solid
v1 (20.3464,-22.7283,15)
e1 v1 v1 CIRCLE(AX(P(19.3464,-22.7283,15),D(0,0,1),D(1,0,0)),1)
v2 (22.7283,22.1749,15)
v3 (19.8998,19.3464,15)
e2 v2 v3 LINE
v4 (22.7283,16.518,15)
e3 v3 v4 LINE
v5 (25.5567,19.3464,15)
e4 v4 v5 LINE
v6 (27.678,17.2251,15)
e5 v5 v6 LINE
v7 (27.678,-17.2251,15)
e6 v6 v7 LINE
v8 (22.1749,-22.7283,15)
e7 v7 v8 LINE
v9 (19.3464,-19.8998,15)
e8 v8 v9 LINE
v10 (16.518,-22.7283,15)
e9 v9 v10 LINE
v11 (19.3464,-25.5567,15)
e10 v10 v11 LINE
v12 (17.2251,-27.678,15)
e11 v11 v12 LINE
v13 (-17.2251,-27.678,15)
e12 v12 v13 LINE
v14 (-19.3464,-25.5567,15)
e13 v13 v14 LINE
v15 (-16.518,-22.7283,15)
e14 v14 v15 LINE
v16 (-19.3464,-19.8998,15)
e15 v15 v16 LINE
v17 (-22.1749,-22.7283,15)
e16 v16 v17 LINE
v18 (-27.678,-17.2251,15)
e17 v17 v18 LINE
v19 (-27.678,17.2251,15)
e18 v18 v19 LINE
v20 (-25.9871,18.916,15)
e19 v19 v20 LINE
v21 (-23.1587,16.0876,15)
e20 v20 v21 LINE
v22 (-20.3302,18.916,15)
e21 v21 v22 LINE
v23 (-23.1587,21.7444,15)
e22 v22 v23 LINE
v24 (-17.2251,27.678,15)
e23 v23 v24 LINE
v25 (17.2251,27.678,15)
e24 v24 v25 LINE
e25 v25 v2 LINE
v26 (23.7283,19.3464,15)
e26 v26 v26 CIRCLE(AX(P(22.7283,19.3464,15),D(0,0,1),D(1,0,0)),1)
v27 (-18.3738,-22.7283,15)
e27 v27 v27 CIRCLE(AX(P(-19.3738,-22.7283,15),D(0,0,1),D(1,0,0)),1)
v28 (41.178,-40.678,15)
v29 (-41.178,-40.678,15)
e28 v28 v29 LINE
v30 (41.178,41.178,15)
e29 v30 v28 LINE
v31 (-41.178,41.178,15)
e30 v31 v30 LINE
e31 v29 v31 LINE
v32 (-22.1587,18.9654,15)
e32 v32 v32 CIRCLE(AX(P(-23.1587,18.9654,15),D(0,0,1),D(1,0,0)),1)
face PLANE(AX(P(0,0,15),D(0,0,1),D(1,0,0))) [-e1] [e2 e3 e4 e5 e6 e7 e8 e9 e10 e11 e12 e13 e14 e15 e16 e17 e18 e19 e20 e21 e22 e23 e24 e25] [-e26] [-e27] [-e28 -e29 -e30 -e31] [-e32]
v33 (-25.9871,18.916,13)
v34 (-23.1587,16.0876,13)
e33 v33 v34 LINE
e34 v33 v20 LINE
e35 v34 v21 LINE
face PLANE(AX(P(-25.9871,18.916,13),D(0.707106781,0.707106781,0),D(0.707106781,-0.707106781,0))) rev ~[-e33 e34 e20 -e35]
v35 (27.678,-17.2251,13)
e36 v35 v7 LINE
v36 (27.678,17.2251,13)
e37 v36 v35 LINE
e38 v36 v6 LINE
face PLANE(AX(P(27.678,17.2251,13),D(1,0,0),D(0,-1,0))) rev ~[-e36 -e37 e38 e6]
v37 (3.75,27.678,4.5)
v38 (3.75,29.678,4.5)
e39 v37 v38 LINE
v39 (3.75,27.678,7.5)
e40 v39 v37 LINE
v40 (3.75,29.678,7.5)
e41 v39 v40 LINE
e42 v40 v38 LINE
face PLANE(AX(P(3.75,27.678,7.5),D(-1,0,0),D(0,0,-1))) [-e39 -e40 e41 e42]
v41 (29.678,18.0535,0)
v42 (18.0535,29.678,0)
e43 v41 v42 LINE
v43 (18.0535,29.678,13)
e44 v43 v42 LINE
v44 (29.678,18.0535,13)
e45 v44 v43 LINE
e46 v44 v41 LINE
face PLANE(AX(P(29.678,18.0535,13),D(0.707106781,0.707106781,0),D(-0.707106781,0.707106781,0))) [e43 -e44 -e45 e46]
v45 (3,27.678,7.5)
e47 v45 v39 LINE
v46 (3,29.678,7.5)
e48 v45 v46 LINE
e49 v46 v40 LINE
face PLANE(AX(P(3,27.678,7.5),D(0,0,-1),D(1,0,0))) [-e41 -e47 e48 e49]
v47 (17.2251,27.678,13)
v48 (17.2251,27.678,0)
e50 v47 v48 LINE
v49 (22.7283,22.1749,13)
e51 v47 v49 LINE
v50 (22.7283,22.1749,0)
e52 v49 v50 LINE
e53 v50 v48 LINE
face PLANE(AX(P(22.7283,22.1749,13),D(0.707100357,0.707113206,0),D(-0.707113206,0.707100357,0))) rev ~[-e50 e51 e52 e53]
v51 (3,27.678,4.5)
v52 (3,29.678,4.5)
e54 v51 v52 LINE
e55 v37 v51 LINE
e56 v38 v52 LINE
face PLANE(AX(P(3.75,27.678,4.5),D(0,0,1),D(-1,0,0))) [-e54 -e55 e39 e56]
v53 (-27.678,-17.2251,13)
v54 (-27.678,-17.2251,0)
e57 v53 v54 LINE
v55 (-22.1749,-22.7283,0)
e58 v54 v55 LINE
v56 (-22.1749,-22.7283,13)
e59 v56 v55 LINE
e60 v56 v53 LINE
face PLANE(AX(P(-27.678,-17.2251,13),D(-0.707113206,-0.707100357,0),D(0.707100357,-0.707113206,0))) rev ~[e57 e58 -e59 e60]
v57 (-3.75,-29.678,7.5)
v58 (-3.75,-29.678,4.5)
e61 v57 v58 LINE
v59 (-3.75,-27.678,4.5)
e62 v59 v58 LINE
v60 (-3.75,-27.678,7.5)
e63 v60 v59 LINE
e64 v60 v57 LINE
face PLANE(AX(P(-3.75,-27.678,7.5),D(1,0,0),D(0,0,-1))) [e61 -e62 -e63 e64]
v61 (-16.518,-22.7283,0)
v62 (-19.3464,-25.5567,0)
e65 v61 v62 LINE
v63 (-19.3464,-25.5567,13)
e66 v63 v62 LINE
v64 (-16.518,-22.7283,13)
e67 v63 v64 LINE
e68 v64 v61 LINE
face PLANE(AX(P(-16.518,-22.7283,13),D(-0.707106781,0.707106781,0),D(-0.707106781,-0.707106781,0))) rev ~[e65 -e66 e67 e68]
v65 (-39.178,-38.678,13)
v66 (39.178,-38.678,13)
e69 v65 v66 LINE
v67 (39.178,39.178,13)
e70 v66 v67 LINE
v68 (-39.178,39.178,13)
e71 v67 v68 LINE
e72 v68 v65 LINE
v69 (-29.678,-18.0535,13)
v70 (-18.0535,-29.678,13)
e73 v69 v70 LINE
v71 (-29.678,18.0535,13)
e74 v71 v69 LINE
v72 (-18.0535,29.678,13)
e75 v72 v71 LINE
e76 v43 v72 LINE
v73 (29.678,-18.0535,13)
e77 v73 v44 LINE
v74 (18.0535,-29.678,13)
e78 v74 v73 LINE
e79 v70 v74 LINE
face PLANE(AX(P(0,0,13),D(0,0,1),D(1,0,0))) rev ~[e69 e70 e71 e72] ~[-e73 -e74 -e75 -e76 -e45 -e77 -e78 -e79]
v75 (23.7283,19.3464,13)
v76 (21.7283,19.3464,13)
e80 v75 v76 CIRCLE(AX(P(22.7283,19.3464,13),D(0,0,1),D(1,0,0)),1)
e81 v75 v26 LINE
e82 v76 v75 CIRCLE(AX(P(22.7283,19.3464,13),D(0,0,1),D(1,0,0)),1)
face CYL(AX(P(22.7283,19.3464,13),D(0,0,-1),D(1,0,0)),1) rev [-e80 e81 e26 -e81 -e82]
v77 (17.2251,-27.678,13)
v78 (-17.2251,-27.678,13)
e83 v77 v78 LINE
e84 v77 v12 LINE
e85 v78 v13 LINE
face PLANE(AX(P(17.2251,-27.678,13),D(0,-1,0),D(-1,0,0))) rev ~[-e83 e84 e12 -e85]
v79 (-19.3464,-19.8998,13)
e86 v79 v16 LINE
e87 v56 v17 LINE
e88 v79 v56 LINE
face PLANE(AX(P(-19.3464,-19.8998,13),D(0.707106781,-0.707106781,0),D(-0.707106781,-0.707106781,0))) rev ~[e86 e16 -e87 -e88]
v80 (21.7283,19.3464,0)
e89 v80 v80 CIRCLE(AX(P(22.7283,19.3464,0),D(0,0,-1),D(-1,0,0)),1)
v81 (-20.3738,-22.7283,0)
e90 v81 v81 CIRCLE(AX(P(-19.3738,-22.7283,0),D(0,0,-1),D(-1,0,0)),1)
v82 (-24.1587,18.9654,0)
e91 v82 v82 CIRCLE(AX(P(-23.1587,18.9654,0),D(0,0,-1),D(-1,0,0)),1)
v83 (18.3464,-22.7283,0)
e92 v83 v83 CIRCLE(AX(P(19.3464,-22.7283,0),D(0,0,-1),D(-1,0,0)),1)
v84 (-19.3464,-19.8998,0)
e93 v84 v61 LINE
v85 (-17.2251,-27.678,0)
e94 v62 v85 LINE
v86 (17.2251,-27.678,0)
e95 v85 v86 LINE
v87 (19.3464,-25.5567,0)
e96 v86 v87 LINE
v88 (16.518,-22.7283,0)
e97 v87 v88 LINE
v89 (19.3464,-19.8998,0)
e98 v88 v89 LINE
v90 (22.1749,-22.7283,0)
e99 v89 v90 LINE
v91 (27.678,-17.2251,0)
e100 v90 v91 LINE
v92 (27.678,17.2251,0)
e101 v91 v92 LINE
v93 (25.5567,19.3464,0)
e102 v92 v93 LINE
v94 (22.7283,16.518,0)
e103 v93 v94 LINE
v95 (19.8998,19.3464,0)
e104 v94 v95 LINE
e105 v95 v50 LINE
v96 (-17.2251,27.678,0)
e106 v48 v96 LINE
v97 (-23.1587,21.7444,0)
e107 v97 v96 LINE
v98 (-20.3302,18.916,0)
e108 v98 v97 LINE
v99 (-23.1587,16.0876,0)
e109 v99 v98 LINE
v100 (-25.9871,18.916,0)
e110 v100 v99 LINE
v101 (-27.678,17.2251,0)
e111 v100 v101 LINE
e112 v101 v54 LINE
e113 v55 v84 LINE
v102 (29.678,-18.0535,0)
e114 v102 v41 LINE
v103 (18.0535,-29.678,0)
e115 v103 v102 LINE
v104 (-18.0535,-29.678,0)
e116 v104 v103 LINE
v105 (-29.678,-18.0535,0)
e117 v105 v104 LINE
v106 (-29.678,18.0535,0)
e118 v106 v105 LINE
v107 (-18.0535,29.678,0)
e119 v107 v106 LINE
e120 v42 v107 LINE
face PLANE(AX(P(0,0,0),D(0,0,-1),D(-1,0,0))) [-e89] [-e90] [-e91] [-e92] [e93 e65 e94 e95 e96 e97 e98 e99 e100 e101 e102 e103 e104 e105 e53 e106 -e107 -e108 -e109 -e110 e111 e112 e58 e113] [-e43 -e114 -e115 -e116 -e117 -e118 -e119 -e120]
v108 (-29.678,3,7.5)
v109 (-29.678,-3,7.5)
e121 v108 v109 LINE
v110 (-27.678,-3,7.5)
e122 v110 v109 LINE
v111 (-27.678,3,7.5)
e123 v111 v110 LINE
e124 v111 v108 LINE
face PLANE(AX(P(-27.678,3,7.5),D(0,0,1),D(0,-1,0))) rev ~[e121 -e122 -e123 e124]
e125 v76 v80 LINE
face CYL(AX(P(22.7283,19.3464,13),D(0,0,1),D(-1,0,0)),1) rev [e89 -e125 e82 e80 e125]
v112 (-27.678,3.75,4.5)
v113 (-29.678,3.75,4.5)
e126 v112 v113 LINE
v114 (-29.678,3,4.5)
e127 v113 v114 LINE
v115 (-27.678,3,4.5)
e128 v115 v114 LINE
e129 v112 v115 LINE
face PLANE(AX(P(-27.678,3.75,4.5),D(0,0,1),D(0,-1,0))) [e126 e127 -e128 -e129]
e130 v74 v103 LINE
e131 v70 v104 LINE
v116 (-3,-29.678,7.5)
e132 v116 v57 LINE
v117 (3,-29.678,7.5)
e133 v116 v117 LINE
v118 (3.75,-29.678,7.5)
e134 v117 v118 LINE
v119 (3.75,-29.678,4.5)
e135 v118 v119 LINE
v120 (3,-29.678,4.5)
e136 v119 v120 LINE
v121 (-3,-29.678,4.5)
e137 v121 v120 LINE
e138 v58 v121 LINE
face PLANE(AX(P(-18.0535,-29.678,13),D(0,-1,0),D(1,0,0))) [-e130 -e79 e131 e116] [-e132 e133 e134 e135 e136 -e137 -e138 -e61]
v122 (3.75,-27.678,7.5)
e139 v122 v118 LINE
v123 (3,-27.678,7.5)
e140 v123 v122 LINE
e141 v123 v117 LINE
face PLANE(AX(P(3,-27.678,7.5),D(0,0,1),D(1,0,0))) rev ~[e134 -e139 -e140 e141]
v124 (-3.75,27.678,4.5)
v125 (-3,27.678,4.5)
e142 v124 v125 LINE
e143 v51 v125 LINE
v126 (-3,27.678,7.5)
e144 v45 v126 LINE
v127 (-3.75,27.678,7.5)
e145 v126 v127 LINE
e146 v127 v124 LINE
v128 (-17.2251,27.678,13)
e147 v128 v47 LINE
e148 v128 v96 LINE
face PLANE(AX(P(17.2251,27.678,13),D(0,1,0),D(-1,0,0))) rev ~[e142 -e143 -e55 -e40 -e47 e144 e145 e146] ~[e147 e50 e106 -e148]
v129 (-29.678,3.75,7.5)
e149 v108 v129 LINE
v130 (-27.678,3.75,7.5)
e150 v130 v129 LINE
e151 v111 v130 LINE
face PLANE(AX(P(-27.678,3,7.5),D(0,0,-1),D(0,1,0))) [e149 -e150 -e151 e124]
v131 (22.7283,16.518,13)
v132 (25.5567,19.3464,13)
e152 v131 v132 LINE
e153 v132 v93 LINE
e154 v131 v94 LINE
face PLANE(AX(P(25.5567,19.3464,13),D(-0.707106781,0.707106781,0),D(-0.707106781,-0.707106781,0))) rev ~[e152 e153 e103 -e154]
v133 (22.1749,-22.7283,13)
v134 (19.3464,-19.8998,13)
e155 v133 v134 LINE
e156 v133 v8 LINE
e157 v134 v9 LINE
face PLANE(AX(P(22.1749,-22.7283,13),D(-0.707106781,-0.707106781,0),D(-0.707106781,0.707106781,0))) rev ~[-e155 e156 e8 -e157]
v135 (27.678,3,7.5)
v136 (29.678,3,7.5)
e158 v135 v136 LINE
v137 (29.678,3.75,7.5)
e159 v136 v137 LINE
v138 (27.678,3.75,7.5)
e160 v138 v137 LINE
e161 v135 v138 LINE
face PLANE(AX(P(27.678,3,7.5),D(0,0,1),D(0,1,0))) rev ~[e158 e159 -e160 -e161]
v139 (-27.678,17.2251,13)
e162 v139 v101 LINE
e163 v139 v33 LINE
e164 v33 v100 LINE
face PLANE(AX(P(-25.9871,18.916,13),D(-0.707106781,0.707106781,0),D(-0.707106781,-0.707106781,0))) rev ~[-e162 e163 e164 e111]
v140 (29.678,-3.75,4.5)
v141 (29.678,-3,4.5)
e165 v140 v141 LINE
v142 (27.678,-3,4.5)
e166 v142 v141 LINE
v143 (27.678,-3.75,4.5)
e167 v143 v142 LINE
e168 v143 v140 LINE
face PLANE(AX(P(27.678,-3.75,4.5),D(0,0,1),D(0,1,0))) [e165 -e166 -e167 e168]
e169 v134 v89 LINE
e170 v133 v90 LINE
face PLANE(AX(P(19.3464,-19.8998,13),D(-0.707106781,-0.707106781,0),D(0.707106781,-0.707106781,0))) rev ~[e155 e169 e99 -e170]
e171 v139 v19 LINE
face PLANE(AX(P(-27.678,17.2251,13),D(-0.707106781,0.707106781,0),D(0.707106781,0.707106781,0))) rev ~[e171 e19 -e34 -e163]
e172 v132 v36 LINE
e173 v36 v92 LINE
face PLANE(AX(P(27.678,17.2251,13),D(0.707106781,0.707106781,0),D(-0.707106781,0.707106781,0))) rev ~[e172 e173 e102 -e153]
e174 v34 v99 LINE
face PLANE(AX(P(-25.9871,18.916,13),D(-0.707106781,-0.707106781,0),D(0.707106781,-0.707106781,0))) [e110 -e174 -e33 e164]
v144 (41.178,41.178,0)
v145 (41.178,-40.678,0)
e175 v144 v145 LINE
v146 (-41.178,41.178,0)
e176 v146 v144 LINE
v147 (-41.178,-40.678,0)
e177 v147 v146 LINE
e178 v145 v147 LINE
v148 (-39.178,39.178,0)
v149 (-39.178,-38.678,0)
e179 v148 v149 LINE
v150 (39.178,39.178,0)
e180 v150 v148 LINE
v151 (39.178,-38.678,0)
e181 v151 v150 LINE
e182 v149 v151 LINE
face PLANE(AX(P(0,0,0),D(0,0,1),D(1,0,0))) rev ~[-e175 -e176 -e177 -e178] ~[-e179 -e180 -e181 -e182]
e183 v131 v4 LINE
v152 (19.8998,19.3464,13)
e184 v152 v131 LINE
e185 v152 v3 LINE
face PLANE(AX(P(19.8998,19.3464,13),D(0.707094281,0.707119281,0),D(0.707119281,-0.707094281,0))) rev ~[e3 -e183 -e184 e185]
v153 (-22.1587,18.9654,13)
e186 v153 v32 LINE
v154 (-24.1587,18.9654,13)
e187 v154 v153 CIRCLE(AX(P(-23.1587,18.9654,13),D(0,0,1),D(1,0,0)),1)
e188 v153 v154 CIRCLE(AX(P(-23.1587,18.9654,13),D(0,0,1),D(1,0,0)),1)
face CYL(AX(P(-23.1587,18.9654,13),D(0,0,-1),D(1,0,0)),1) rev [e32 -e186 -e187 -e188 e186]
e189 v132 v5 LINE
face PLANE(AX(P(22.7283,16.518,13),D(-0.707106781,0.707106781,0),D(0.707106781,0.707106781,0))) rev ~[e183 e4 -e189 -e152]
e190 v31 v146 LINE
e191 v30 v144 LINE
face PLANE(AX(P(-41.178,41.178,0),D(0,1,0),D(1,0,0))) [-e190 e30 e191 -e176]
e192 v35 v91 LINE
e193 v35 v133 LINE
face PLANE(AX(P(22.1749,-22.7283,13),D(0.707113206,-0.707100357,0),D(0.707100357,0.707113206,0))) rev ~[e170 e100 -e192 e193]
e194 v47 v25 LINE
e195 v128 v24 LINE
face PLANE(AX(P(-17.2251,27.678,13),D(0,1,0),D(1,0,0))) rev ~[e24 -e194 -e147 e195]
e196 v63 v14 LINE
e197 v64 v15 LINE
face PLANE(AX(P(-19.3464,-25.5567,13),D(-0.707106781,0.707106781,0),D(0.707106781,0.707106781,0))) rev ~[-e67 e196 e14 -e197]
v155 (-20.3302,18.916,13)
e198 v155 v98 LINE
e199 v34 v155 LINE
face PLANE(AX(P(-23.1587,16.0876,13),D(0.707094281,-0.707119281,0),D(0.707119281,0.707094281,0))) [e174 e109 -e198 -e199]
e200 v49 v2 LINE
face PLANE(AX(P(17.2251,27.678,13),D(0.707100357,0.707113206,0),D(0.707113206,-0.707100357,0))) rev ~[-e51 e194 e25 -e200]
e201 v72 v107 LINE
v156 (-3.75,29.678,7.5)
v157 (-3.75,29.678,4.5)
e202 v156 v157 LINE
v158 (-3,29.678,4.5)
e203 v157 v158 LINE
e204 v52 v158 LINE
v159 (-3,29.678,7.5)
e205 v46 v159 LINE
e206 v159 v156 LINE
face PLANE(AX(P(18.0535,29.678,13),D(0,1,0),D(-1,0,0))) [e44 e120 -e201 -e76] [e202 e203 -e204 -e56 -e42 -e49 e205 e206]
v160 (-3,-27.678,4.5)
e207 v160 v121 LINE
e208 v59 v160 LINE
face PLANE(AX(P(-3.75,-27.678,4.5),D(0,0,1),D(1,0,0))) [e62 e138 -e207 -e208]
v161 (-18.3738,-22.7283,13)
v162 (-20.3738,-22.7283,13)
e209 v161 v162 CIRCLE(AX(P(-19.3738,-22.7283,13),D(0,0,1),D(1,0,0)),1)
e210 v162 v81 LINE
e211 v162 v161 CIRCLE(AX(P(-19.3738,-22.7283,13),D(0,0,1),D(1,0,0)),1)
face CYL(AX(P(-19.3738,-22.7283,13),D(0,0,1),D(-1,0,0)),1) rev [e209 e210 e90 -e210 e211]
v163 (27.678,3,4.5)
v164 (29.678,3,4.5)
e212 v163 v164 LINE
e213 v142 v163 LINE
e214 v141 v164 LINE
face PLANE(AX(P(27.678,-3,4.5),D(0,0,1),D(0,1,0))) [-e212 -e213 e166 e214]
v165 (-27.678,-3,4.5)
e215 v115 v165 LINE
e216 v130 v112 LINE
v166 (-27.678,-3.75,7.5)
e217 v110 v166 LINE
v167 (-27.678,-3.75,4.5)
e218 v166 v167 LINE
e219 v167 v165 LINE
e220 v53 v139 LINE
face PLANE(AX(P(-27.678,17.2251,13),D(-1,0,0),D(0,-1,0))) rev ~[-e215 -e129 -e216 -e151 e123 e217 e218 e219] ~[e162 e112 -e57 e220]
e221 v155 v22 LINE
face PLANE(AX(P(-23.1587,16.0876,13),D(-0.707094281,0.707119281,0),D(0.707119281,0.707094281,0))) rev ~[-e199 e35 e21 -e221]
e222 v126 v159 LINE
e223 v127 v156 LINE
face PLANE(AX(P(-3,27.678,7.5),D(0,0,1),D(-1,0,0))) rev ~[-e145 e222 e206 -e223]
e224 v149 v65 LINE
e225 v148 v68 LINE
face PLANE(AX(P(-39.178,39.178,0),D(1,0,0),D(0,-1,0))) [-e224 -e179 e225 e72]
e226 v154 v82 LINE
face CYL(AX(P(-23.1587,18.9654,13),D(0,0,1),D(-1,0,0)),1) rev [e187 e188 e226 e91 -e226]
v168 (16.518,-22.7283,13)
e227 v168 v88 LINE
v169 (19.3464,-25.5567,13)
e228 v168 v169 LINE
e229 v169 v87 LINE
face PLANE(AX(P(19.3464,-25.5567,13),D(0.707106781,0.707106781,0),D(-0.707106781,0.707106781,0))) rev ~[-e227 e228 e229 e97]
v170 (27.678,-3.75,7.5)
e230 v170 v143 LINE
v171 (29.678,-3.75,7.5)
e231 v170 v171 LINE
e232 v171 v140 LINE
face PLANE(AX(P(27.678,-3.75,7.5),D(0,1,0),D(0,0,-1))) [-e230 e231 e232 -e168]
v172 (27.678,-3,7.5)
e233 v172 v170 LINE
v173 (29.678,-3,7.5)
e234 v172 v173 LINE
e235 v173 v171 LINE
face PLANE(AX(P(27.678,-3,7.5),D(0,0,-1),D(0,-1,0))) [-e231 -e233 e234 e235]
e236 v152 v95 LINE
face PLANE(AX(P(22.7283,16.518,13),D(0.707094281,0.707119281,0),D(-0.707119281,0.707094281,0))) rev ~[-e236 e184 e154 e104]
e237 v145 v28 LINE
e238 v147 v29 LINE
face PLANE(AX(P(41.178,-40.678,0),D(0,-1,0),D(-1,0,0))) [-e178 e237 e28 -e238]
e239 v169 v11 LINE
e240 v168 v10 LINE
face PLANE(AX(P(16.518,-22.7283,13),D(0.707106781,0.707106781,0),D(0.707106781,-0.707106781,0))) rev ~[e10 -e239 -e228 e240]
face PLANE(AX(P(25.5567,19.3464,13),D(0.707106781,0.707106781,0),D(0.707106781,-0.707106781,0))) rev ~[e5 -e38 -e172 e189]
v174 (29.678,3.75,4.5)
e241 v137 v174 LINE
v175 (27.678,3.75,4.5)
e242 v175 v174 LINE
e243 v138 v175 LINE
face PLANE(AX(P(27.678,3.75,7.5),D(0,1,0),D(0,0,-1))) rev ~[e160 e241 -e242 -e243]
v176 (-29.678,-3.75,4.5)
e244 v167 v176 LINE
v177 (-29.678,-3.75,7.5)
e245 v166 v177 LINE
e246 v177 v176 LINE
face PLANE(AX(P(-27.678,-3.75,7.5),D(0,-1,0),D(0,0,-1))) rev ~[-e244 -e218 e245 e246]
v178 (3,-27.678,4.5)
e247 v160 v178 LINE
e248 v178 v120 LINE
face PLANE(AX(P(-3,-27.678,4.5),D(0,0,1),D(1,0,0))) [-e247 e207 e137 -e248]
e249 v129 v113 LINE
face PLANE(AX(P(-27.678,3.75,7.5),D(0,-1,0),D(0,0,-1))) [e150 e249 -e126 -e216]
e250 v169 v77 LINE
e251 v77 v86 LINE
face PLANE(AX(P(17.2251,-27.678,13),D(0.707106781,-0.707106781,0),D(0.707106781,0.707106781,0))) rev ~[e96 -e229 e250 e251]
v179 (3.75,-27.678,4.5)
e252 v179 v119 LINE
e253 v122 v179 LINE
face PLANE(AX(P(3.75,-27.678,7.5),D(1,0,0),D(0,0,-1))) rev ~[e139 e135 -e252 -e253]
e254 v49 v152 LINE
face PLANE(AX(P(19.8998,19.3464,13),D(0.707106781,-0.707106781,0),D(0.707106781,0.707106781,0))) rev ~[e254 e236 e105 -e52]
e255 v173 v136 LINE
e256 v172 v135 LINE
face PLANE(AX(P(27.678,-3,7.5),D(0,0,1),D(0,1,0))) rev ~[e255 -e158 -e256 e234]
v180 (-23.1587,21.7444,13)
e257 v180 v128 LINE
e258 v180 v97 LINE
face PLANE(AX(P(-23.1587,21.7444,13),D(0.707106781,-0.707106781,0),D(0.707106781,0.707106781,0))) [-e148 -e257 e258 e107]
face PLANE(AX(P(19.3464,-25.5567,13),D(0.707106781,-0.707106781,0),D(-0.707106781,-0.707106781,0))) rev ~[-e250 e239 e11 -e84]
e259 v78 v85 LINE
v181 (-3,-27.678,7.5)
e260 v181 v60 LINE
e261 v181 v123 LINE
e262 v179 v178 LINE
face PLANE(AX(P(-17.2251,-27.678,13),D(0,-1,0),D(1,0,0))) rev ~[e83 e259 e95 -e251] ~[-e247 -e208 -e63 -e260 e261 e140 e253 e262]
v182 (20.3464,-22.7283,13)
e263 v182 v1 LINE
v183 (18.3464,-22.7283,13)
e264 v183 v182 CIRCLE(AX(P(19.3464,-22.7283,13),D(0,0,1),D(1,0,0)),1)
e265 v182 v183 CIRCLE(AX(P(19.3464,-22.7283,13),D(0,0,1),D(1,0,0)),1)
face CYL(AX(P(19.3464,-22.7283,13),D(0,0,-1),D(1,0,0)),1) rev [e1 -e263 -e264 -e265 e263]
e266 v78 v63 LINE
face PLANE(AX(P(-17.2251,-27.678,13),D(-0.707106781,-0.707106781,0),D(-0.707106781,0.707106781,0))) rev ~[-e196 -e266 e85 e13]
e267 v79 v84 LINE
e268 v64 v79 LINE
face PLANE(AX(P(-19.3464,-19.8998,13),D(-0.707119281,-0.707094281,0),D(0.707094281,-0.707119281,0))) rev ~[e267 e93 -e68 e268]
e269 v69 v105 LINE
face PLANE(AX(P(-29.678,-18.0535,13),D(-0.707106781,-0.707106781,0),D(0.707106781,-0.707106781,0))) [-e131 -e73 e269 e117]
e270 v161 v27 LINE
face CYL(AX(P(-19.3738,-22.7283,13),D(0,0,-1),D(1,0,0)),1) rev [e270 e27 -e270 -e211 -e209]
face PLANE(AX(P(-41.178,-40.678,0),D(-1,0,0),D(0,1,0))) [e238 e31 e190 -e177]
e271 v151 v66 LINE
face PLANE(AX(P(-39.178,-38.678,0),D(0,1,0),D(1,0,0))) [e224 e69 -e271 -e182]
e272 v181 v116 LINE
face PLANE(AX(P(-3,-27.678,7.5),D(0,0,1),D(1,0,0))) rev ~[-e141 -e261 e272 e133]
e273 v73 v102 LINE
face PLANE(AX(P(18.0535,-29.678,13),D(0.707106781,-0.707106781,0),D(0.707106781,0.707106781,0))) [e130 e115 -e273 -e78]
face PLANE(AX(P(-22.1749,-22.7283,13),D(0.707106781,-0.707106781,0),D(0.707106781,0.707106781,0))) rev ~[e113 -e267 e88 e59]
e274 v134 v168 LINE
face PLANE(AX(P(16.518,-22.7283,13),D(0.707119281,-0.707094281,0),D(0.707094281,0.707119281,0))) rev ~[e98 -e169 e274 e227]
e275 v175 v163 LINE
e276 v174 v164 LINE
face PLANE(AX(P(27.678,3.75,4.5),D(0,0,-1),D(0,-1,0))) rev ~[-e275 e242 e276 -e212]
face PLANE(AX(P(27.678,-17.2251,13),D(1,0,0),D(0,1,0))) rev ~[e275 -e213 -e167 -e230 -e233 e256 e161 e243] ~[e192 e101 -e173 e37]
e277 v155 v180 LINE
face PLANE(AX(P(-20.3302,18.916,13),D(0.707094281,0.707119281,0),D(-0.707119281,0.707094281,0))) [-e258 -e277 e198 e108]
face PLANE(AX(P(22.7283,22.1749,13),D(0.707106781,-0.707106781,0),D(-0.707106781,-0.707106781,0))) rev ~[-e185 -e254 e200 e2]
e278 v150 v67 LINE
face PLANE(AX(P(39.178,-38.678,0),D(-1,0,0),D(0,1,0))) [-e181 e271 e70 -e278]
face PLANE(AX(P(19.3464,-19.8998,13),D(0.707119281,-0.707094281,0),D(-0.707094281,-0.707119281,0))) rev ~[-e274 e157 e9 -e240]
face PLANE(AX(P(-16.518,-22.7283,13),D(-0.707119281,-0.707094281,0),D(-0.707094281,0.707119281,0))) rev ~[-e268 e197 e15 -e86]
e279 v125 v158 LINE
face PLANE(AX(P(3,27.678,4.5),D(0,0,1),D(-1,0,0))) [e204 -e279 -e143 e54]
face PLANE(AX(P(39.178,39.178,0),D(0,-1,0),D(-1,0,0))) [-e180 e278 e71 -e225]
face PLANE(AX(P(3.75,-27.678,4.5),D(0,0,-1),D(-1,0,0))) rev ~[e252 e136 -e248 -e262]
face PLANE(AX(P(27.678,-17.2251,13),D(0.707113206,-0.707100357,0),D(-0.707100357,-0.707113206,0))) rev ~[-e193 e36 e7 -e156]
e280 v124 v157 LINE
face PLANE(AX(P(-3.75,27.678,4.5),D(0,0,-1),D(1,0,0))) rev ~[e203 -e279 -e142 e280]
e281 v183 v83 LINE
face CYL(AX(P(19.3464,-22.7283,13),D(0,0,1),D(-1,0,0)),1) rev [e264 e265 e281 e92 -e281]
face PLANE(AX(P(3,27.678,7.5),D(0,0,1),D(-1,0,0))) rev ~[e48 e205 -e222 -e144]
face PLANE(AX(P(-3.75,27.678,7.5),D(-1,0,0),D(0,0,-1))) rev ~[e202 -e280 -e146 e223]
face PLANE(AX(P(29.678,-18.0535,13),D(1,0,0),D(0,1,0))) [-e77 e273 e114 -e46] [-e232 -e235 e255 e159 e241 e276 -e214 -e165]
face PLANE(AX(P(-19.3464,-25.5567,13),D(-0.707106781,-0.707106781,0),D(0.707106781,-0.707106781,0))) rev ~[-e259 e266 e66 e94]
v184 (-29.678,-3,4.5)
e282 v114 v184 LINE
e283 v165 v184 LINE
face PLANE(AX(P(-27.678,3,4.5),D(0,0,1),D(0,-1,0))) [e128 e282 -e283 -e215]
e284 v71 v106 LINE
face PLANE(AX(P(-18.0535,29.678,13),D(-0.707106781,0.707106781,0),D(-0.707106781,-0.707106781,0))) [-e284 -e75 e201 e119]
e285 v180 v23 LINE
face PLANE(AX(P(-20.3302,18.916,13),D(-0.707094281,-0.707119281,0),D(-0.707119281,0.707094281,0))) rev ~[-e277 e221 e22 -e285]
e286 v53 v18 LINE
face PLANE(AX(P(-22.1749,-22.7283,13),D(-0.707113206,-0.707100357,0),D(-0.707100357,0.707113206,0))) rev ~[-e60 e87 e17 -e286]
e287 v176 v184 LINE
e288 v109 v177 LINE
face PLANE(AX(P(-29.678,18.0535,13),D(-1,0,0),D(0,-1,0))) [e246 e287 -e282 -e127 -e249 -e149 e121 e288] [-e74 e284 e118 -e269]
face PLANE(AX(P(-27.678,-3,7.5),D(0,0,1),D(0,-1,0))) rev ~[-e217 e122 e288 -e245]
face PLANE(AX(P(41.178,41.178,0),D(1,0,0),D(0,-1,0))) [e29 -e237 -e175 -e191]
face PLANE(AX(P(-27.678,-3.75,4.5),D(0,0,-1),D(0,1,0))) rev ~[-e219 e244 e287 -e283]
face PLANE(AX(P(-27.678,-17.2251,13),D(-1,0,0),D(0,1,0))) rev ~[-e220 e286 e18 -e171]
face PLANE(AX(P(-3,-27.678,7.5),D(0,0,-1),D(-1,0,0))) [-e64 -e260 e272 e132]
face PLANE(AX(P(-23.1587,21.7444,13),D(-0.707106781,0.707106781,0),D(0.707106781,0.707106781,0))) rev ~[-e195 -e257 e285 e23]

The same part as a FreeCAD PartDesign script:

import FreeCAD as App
import Part
import Sketcher
from FreeCAD import Vector

doc = App.newDocument("Part")
body = doc.addObject("PartDesign::Body", "Body")

# Sketch on XY plane
sketch1 = doc.addObject("Sketcher::SketchObject", "Sketch")
body.addObject(sketch1)
sketch1.AttachmentSupport = (doc.XY_Plane, [""])
sketch1.MapMode = "FlatFace"
sketch1.addGeometry([
    Part.LineSegment(Vector(-41.178, 41.178, 0), Vector(-41.178, -40.678, 0)),  # 0
    Part.LineSegment(Vector(-41.178, -40.678, 0), Vector(41.178, -40.678, 0)),  # 1
    Part.LineSegment(Vector(41.178, -40.678, 0), Vector(41.178, 41.178, 0)),  # 2
    Part.LineSegment(Vector(41.178, 41.178, 0), Vector(-41.178, 41.178, 0)),  # 3
    Part.LineSegment(Vector(-39.178, -38.678, 0), Vector(-39.178, 39.178, 0)),  # 4
    Part.LineSegment(Vector(-39.178, 39.178, 0), Vector(39.178, 39.178, 0)),  # 5
    Part.LineSegment(Vector(39.178, 39.178, 0), Vector(39.178, -38.678, 0)),  # 6
    Part.LineSegment(Vector(39.178, -38.678, 0), Vector(-39.178, -38.678, 0)),  # 7
], False)
sketch1.addConstraint([
    Sketcher.Constraint("Coincident", 0, 2, 1, 1),
    Sketcher.Constraint("Coincident", 1, 2, 2, 1),
    Sketcher.Constraint("Coincident", 2, 2, 3, 1),
    Sketcher.Constraint("Coincident", 3, 2, 0, 1),
    Sketcher.Constraint("Coincident", 4, 2, 5, 1),
    Sketcher.Constraint("Coincident", 5, 2, 6, 1),
    Sketcher.Constraint("Coincident", 6, 2, 7, 1),
    Sketcher.Constraint("Coincident", 7, 2, 4, 1),
    Sketcher.Constraint("Vertical", 0),
    Sketcher.Constraint("Horizontal", 1),
    Sketcher.Constraint("Vertical", 2),
    Sketcher.Constraint("Horizontal", 3),
    Sketcher.Constraint("Vertical", 4),
    Sketcher.Constraint("Horizontal", 5),
    Sketcher.Constraint("Vertical", 6),
    Sketcher.Constraint("Horizontal", 7),
    Sketcher.Constraint("DistanceX", 3, 2, 4, 2, 2.0),
    Sketcher.Constraint("DistanceY", 4, 2, 3, 2, 2.0),
    Sketcher.Constraint("DistanceX", 5, 2, 2, 2, 2.0),
    Sketcher.Constraint("DistanceY", 1, 2, 6, 2, 2.0),
    Sketcher.Constraint("DistanceX", 1, 1, 1, 2, 82.356),
    Sketcher.Constraint("DistanceY", 0, 2, 0, 1, 81.856),
    Sketcher.Constraint("DistanceX", 0, 2, -1, 1, 41.178),
    Sketcher.Constraint("DistanceY", 0, 2, -1, 1, 40.678),
])
pad1 = doc.addObject("PartDesign::Pad", "Pad")
body.addObject(pad1)
pad1.Profile = sketch1
pad1.Length = 13

# Sketch on XY plane
sketch2 = doc.addObject("Sketcher::SketchObject", "Sketch001")
body.addObject(sketch2)
sketch2.AttachmentSupport = (doc.XY_Plane, [""])
sketch2.MapMode = "FlatFace"
sketch2.AttachmentOffset = App.Placement(Vector(0, 0, 13), App.Rotation())
sketch2.addGeometry([
    Part.LineSegment(Vector(-41.178, -40.678, 0), Vector(41.178, -40.678, 0)),  # 0
    Part.LineSegment(Vector(41.178, -40.678, 0), Vector(41.178, 41.178, 0)),  # 1
    Part.LineSegment(Vector(41.178, 41.178, 0), Vector(-41.178, 41.178, 0)),  # 2
    Part.LineSegment(Vector(-41.178, 41.178, 0), Vector(-41.178, -40.678, 0)),  # 3
    Part.Circle(Vector(-19.3738, -22.7283, 0), Vector(0, 0, 1), 1),  # 4
    Part.Circle(Vector(19.3464, -22.7283, 0), Vector(0, 0, 1), 1),  # 5
    Part.LineSegment(Vector(-17.2251, 27.678, 0), Vector(17.2251, 27.678, 0)),  # 6
    Part.LineSegment(Vector(17.2251, 27.678, 0), Vector(22.7283, 22.1749, 0)),  # 7
    Part.LineSegment(Vector(22.7283, 22.1749, 0), Vector(19.8998, 19.3464, 0)),  # 8
    Part.LineSegment(Vector(19.8998, 19.3464, 0), Vector(22.7283, 16.518, 0)),  # 9
    Part.LineSegment(Vector(22.7283, 16.518, 0), Vector(25.5567, 19.3464, 0)),  # 10
    Part.LineSegment(Vector(25.5567, 19.3464, 0), Vector(27.678, 17.2251, 0)),  # 11
    Part.LineSegment(Vector(27.678, 17.2251, 0), Vector(27.678, -17.2251, 0)),  # 12
    Part.LineSegment(Vector(27.678, -17.2251, 0), Vector(22.1749, -22.7283, 0)),  # 13
    Part.LineSegment(Vector(22.1749, -22.7283, 0), Vector(19.3464, -19.8998, 0)),  # 14
    Part.LineSegment(Vector(19.3464, -19.8998, 0), Vector(16.518, -22.7283, 0)),  # 15
    Part.LineSegment(Vector(16.518, -22.7283, 0), Vector(19.3464, -25.5567, 0)),  # 16
    Part.LineSegment(Vector(19.3464, -25.5567, 0), Vector(17.2251, -27.678, 0)),  # 17
    Part.LineSegment(Vector(17.2251, -27.678, 0), Vector(-17.2251, -27.678, 0)),  # 18
    Part.LineSegment(Vector(-17.2251, -27.678, 0), Vector(-19.3464, -25.5567, 0)),  # 19
    Part.LineSegment(Vector(-19.3464, -25.5567, 0), Vector(-16.518, -22.7283, 0)),  # 20
    Part.LineSegment(Vector(-16.518, -22.7283, 0), Vector(-19.3464, -19.8998, 0)),  # 21
    Part.LineSegment(Vector(-19.3464, -19.8998, 0), Vector(-22.1749, -22.7283, 0)),  # 22
    Part.LineSegment(Vector(-22.1749, -22.7283, 0), Vector(-27.678, -17.2251, 0)),  # 23
    Part.LineSegment(Vector(-27.678, -17.2251, 0), Vector(-27.678, 17.2251, 0)),  # 24
    Part.LineSegment(Vector(-27.678, 17.2251, 0), Vector(-25.9871, 18.916, 0)),  # 25
    Part.LineSegment(Vector(-25.9871, 18.916, 0), Vector(-23.1587, 16.0876, 0)),  # 26
    Part.LineSegment(Vector(-23.1587, 16.0876, 0), Vector(-20.3302, 18.916, 0)),  # 27
    Part.LineSegment(Vector(-20.3302, 18.916, 0), Vector(-23.1587, 21.7444, 0)),  # 28
    Part.LineSegment(Vector(-23.1587, 21.7444, 0), Vector(-17.2251, 27.678, 0)),  # 29
    Part.Circle(Vector(22.7283, 19.3464, 0), Vector(0, 0, 1), 1),  # 30
    Part.Circle(Vector(-23.1587, 18.9654, 0), Vector(0, 0, 1), 1),  # 31
], False)
sketch2.addConstraint([
    Sketcher.Constraint("Coincident", 0, 2, 1, 1),
    Sketcher.Constraint("Coincident", 1, 2, 2, 1),
    Sketcher.Constraint("Coincident", 2, 2, 3, 1),
    Sketcher.Constraint("Coincident", 3, 2, 0, 1),
    Sketcher.Constraint("Coincident", 6, 2, 7, 1),
    Sketcher.Constraint("Coincident", 7, 2, 8, 1),
    Sketcher.Constraint("Coincident", 8, 2, 9, 1),
    Sketcher.Constraint("Coincident", 9, 2, 10, 1),
    Sketcher.Constraint("Coincident", 10, 2, 11, 1),
    Sketcher.Constraint("Coincident", 11, 2, 12, 1),
    Sketcher.Constraint("Coincident", 12, 2, 13, 1),
    Sketcher.Constraint("Coincident", 13, 2, 14, 1),
    Sketcher.Constraint("Coincident", 14, 2, 15, 1),
    Sketcher.Constraint("Coincident", 15, 2, 16, 1),
    Sketcher.Constraint("Coincident", 16, 2, 17, 1),
    Sketcher.Constraint("Coincident", 17, 2, 18, 1),
    Sketcher.Constraint("Coincident", 18, 2, 19, 1),
    Sketcher.Constraint("Coincident", 19, 2, 20, 1),
    Sketcher.Constraint("Coincident", 20, 2, 21, 1),
    Sketcher.Constraint("Coincident", 21, 2, 22, 1),
    Sketcher.Constraint("Coincident", 22, 2, 23, 1),
    Sketcher.Constraint("Coincident", 23, 2, 24, 1),
    Sketcher.Constraint("Coincident", 24, 2, 25, 1),
    Sketcher.Constraint("Coincident", 25, 2, 26, 1),
    Sketcher.Constraint("Coincident", 26, 2, 27, 1),
    Sketcher.Constraint("Coincident", 27, 2, 28, 1),
    Sketcher.Constraint("Coincident", 28, 2, 29, 1),
    Sketcher.Constraint("Coincident", 29, 2, 6, 1),
    Sketcher.Constraint("Horizontal", 0),
    Sketcher.Constraint("Vertical", 1),
    Sketcher.Constraint("Horizontal", 2),
    Sketcher.Constraint("Vertical", 3),
    Sketcher.Constraint("Horizontal", 6),
    Sketcher.Constraint("Vertical", 12),
    Sketcher.Constraint("Horizontal", 18),
    Sketcher.Constraint("Vertical", 24),
    Sketcher.Constraint("Equal", 4, 5),
    Sketcher.Constraint("Equal", 5, 30),
    Sketcher.Constraint("Equal", 30, 31),
    Sketcher.Constraint("Symmetric", 6, 2, 18, 2, -1, 1),
    Sketcher.Constraint("Symmetric", 11, 2, 23, 2, -1, 1),
    Sketcher.Constraint("Symmetric", 16, 2, 19, 2, -2),
    Sketcher.Constraint("Symmetric", 15, 2, 20, 2, -2),
    Sketcher.Constraint("Symmetric", 14, 2, 21, 2, -2),
    Sketcher.Constraint("Symmetric", 13, 2, 22, 2, -2),
    Sketcher.Constraint("Perpendicular", 7, 8),
    Sketcher.Constraint("Perpendicular", 8, 9),
    Sketcher.Constraint("Perpendicular", 9, 10),
    Sketcher.Constraint("Perpendicular", 10, 11),
    Sketcher.Constraint("Perpendicular", 11, 13),
    Sketcher.Constraint("Perpendicular", 13, 14),
    Sketcher.Constraint("Perpendicular", 14, 15),
    Sketcher.Constraint("Perpendicular", 15, 16),
    Sketcher.Constraint("Perpendicular", 16, 17),
    Sketcher.Constraint("Perpendicular", 17, 19),
    Sketcher.Constraint("Perpendicular", 19, 20),
    Sketcher.Constraint("Perpendicular", 22, 23),
    Sketcher.Constraint("Perpendicular", 23, 25),
    Sketcher.Constraint("Perpendicular", 25, 26),
    Sketcher.Constraint("Perpendicular", 26, 27),
    Sketcher.Constraint("Perpendicular", 27, 28),
    Sketcher.Constraint("Perpendicular", 28, 29),
    Sketcher.Constraint("Horizontal", 4, 3, 5, 3),
    Sketcher.Constraint("Horizontal", 30, 3, 8, 2),
    Sketcher.Constraint("Horizontal", 8, 2, 10, 2),
    Sketcher.Constraint("Horizontal", 5, 3, 13, 2),
    Sketcher.Constraint("Horizontal", 13, 2, 15, 2),
    Sketcher.Constraint("Horizontal", 11, 2, 24, 2),
    Sketcher.Constraint("Horizontal", 25, 2, 27, 2),
    Sketcher.Constraint("Vertical", 30, 3, 7, 2),
    Sketcher.Constraint("Vertical", 7, 2, 9, 2),
    Sketcher.Constraint("Vertical", 5, 3, 14, 2),
    Sketcher.Constraint("Vertical", 31, 3, 26, 2),
    Sketcher.Constraint("Vertical", 26, 2, 28, 2),
    Sketcher.Constraint("Equal", 18, 12),
    Sketcher.Constraint("Equal", 7, 13),
    Sketcher.Constraint("Equal", 10, 14),
    Sketcher.Constraint("Equal", 22, 26),
    Sketcher.Constraint("Diameter", 4, 2.0),
    Sketcher.Constraint("Distance", 8, 4.0),
    Sketcher.Constraint("Distance", 11, 3.0),
    Sketcher.Constraint("DistanceY", 3, 2, 18, 2, 13.0),
    Sketcher.Constraint("DistanceY", 6, 2, 1, 2, 13.5),
    Sketcher.Constraint("DistanceX", 12, 2, 0, 2, 13.5),
    Sketcher.Constraint("DistanceX", 2, 2, 24, 2, 13.5),
    Sketcher.Constraint("DistanceX", 0, 1, 0, 2, 82.356),
    Sketcher.Constraint("DistanceY", 9, 2, 6, 2, 11.16),
    Sketcher.Constraint("DistanceX", 25, 2, -1, 1, 25.987),
    Sketcher.Constraint("DistanceX", 4, 3, 30, 3, 42.102),
    Sketcher.Constraint("DistanceY", 31, 3, 30, 3, 0.381),
])
pad2 = doc.addObject("PartDesign::Pad", "Pad001")
body.addObject(pad2)
pad2.Profile = sketch2
pad2.Length = 2

# Sketch on XY plane
sketch3 = doc.addObject("Sketcher::SketchObject", "Sketch002")
body.addObject(sketch3)
sketch3.AttachmentSupport = (doc.XY_Plane, [""])
sketch3.MapMode = "FlatFace"
sketch3.AttachmentOffset = App.Placement(Vector(0, 0, 13), App.Rotation())
sketch3.addGeometry([
    Part.LineSegment(Vector(18.0535, -29.678, 0), Vector(-18.0535, -29.678, 0)),  # 0
    Part.LineSegment(Vector(-18.0535, -29.678, 0), Vector(-29.678, -18.0535, 0)),  # 1
    Part.LineSegment(Vector(-29.678, -18.0535, 0), Vector(-29.678, 18.0535, 0)),  # 2
    Part.LineSegment(Vector(-29.678, 18.0535, 0), Vector(-18.0535, 29.678, 0)),  # 3
    Part.LineSegment(Vector(-18.0535, 29.678, 0), Vector(18.0535, 29.678, 0)),  # 4
    Part.LineSegment(Vector(18.0535, 29.678, 0), Vector(29.678, 18.0535, 0)),  # 5
    Part.LineSegment(Vector(29.678, 18.0535, 0), Vector(29.678, -18.0535, 0)),  # 6
    Part.LineSegment(Vector(29.678, -18.0535, 0), Vector(18.0535, -29.678, 0)),  # 7
    Part.Circle(Vector(19.3464, -22.7283, 0), Vector(0, 0, 1), 1),  # 8
    Part.Circle(Vector(-19.3738, -22.7283, 0), Vector(0, 0, 1), 1),  # 9
    Part.Circle(Vector(22.7283, 19.3464, 0), Vector(0, 0, 1), 1),  # 10
    Part.LineSegment(Vector(-19.3464, -25.5567, 0), Vector(-17.2251, -27.678, 0)),  # 11
    Part.LineSegment(Vector(-17.2251, -27.678, 0), Vector(17.2251, -27.678, 0)),  # 12
    Part.LineSegment(Vector(17.2251, -27.678, 0), Vector(19.3464, -25.5567, 0)),  # 13
    Part.LineSegment(Vector(19.3464, -25.5567, 0), Vector(16.518, -22.7283, 0)),  # 14
    Part.LineSegment(Vector(16.518, -22.7283, 0), Vector(19.3464, -19.8998, 0)),  # 15
    Part.LineSegment(Vector(19.3464, -19.8998, 0), Vector(22.1749, -22.7283, 0)),  # 16
    Part.LineSegment(Vector(22.1749, -22.7283, 0), Vector(27.678, -17.2251, 0)),  # 17
    Part.LineSegment(Vector(27.678, -17.2251, 0), Vector(27.678, 17.2251, 0)),  # 18
    Part.LineSegment(Vector(27.678, 17.2251, 0), Vector(25.5567, 19.3464, 0)),  # 19
    Part.LineSegment(Vector(25.5567, 19.3464, 0), Vector(22.7283, 16.518, 0)),  # 20
    Part.LineSegment(Vector(22.7283, 16.518, 0), Vector(19.8998, 19.3464, 0)),  # 21
    Part.LineSegment(Vector(19.8998, 19.3464, 0), Vector(22.7283, 22.1749, 0)),  # 22
    Part.LineSegment(Vector(22.7283, 22.1749, 0), Vector(17.2251, 27.678, 0)),  # 23
    Part.LineSegment(Vector(17.2251, 27.678, 0), Vector(-17.2251, 27.678, 0)),  # 24
    Part.LineSegment(Vector(-17.2251, 27.678, 0), Vector(-23.1587, 21.7444, 0)),  # 25
    Part.LineSegment(Vector(-23.1587, 21.7444, 0), Vector(-20.3302, 18.916, 0)),  # 26
    Part.LineSegment(Vector(-20.3302, 18.916, 0), Vector(-23.1587, 16.0876, 0)),  # 27
    Part.LineSegment(Vector(-23.1587, 16.0876, 0), Vector(-25.9871, 18.916, 0)),  # 28
    Part.LineSegment(Vector(-25.9871, 18.916, 0), Vector(-27.678, 17.2251, 0)),  # 29
    Part.LineSegment(Vector(-27.678, 17.2251, 0), Vector(-27.678, -17.2251, 0)),  # 30
    Part.LineSegment(Vector(-27.678, -17.2251, 0), Vector(-22.1749, -22.7283, 0)),  # 31
    Part.LineSegment(Vector(-22.1749, -22.7283, 0), Vector(-19.3464, -19.8998, 0)),  # 32
    Part.LineSegment(Vector(-19.3464, -19.8998, 0), Vector(-16.518, -22.7283, 0)),  # 33
    Part.LineSegment(Vector(-16.518, -22.7283, 0), Vector(-19.3464, -25.5567, 0)),  # 34
    Part.Circle(Vector(-23.1587, 18.9654, 0), Vector(0, 0, 1), 1),  # 35
], False)
sketch3.addConstraint([
    Sketcher.Constraint("Coincident", 0, 2, 1, 1),
    Sketcher.Constraint("Coincident", 1, 2, 2, 1),
    Sketcher.Constraint("Coincident", 2, 2, 3, 1),
    Sketcher.Constraint("Coincident", 3, 2, 4, 1),
    Sketcher.Constraint("Coincident", 4, 2, 5, 1),
    Sketcher.Constraint("Coincident", 5, 2, 6, 1),
    Sketcher.Constraint("Coincident", 6, 2, 7, 1),
    Sketcher.Constraint("Coincident", 7, 2, 0, 1),
    Sketcher.Constraint("Coincident", 11, 2, 12, 1),
    Sketcher.Constraint("Coincident", 12, 2, 13, 1),
    Sketcher.Constraint("Coincident", 13, 2, 14, 1),
    Sketcher.Constraint("Coincident", 14, 2, 15, 1),
    Sketcher.Constraint("Coincident", 15, 2, 16, 1),
    Sketcher.Constraint("Coincident", 16, 2, 17, 1),
    Sketcher.Constraint("Coincident", 17, 2, 18, 1),
    Sketcher.Constraint("Coincident", 18, 2, 19, 1),
    Sketcher.Constraint("Coincident", 19, 2, 20, 1),
    Sketcher.Constraint("Coincident", 20, 2, 21, 1),
    Sketcher.Constraint("Coincident", 21, 2, 22, 1),
    Sketcher.Constraint("Coincident", 22, 2, 23, 1),
    Sketcher.Constraint("Coincident", 23, 2, 24, 1),
    Sketcher.Constraint("Coincident", 24, 2, 25, 1),
    Sketcher.Constraint("Coincident", 25, 2, 26, 1),
    Sketcher.Constraint("Coincident", 26, 2, 27, 1),
    Sketcher.Constraint("Coincident", 27, 2, 28, 1),
    Sketcher.Constraint("Coincident", 28, 2, 29, 1),
    Sketcher.Constraint("Coincident", 29, 2, 30, 1),
    Sketcher.Constraint("Coincident", 30, 2, 31, 1),
    Sketcher.Constraint("Coincident", 31, 2, 32, 1),
    Sketcher.Constraint("Coincident", 32, 2, 33, 1),
    Sketcher.Constraint("Coincident", 33, 2, 34, 1),
    Sketcher.Constraint("Coincident", 34, 2, 11, 1),
    Sketcher.Constraint("Horizontal", 0),
    Sketcher.Constraint("Vertical", 2),
    Sketcher.Constraint("Horizontal", 4),
    Sketcher.Constraint("Vertical", 6),
    Sketcher.Constraint("Horizontal", 12),
    Sketcher.Constraint("Vertical", 18),
    Sketcher.Constraint("Horizontal", 24),
    Sketcher.Constraint("Vertical", 30),
    Sketcher.Constraint("Equal", 8, 9),
    Sketcher.Constraint("Equal", 9, 10),
    Sketcher.Constraint("Equal", 10, 35),
    Sketcher.Constraint("Symmetric", 0, 2, 4, 2, -1, 1),
    Sketcher.Constraint("Symmetric", 1, 2, 5, 2, -1, 1),
    Sketcher.Constraint("Symmetric", 11, 2, 23, 2, -1, 1),
    Sketcher.Constraint("Symmetric", 17, 2, 29, 2, -1, 1),
    Sketcher.Constraint("Symmetric", 16, 2, 31, 2, -2),
    Sketcher.Constraint("Symmetric", 15, 2, 32, 2, -2),
    Sketcher.Constraint("Symmetric", 14, 2, 33, 2, -2),
    Sketcher.Constraint("Symmetric", 13, 2, 34, 2, -2),
    Sketcher.Constraint("Perpendicular", 1, 3),
    Sketcher.Constraint("Perpendicular", 5, 7),
    Sketcher.Constraint("Perpendicular", 7, 11),
    Sketcher.Constraint("Perpendicular", 11, 13),
    Sketcher.Constraint("Perpendicular", 13, 14),
    Sketcher.Constraint("Perpendicular", 14, 15),
    Sketcher.Constraint("Perpendicular", 15, 16),
    Sketcher.Constraint("Perpendicular", 16, 17),
    Sketcher.Constraint("Perpendicular", 17, 19),
    Sketcher.Constraint("Perpendicular", 19, 20),
    Sketcher.Constraint("Perpendicular", 20, 21),
    Sketcher.Constraint("Perpendicular", 21, 22),
    Sketcher.Constraint("Perpendicular", 22, 23),
    Sketcher.Constraint("Perpendicular", 23, 25),
    Sketcher.Constraint("Perpendicular", 25, 26),
    Sketcher.Constraint("Perpendicular", 26, 27),
    Sketcher.Constraint("Perpendicular", 27, 28),
    Sketcher.Constraint("Perpendicular", 28, 29),
    Sketcher.Constraint("Perpendicular", 29, 31),
    Sketcher.Constraint("Perpendicular", 31, 32),
    Sketcher.Constraint("Horizontal", 8, 3, 9, 3),
    Sketcher.Constraint("Horizontal", 2, 2, 5, 2),
    Sketcher.Constraint("Horizontal", 1, 2, 6, 2),
    Sketcher.Constraint("Horizontal", 9, 3, 14, 2),
    Sketcher.Constraint("Horizontal", 14, 2, 16, 2),
    Sketcher.Constraint("Horizontal", 10, 3, 19, 2),
    Sketcher.Constraint("Horizontal", 19, 2, 21, 2),
    Sketcher.Constraint("Horizontal", 26, 2, 28, 2),
    Sketcher.Constraint("Horizontal", 18, 2, 29, 2),
    Sketcher.Constraint("Vertical", 8, 3, 13, 2),
    Sketcher.Constraint("Vertical", 13, 2, 15, 2),
    Sketcher.Constraint("Vertical", 10, 3, 20, 2),
    Sketcher.Constraint("Vertical", 11, 2, 24, 2),
    Sketcher.Constraint("Vertical", 35, 3, 25, 2),
    Sketcher.Constraint("Equal", 4, 2),
    Sketcher.Constraint("Equal", 24, 18),
    Sketcher.Constraint("Equal", 13, 19),
    Sketcher.Constraint("Equal", 16, 20),
    Sketcher.Constraint("Equal", 22, 26),
    Sketcher.Constraint("Diameter", 8, 2.0),
    Sketcher.Constraint("Distance", 11, 3.0),
    Sketcher.Constraint("Distance", 14, 4.0),
    Sketcher.Constraint("DistanceY", 0, 2, 11, 2, 2.0),
    Sketcher.Constraint("DistanceX", 0, 2, 8, 3, 37.4),
    Sketcher.Constraint("DistanceX", 0, 2, 0, 1, 36.107),
    Sketcher.Constraint("DistanceX", 14, 2, 6, 2, 13.16),
    Sketcher.Constraint("DistanceY", -1, 1, 26, 2, 18.916),
    Sketcher.Constraint("DistanceX", 9, 3, 10, 3, 42.102),
    Sketcher.Constraint("DistanceY", 35, 3, 10, 3, 0.381),
])
pad3 = doc.addObject("PartDesign::Pad", "Pad002")
body.addObject(pad3)
pad3.Profile = sketch3
pad3.Length = 13
pad3.Reversed = True

# Sketch on YZ plane
sketch4 = doc.addObject("Sketcher::SketchObject", "Sketch003")
body.addObject(sketch4)
sketch4.AttachmentSupport = (doc.YZ_Plane, [""])
sketch4.MapMode = "FlatFace"
sketch4.AttachmentOffset = App.Placement(Vector(0, 0, -27.678), App.Rotation())
sketch4.addGeometry([
    Part.LineSegment(Vector(-3.75, 4.5, 0), Vector(3.75, 4.5, 0)),
    Part.LineSegment(Vector(3.75, 4.5, 0), Vector(3.75, 7.5, 0)),
    Part.LineSegment(Vector(3.75, 7.5, 0), Vector(-3.75, 7.5, 0)),
    Part.LineSegment(Vector(-3.75, 7.5, 0), Vector(-3.75, 4.5, 0)),
], False)
sketch4.addConstraint([
    Sketcher.Constraint("Coincident", 0, 2, 1, 1),
    Sketcher.Constraint("Coincident", 1, 2, 2, 1),
    Sketcher.Constraint("Coincident", 2, 2, 3, 1),
    Sketcher.Constraint("Coincident", 3, 2, 0, 1),
    Sketcher.Constraint("Horizontal", 0),
    Sketcher.Constraint("Vertical", 1),
    Sketcher.Constraint("Horizontal", 2),
    Sketcher.Constraint("Vertical", 3),
    Sketcher.Constraint("DistanceY", 1, 1, 1, 2, 3.0),
    Sketcher.Constraint("DistanceX", 0, 1, 0, 2, 7.5),
    Sketcher.Constraint("DistanceY", -1, 1, 0, 2, 4.5),
    Sketcher.Constraint("DistanceX", -1, 1, 0, 2, 3.75),
])
pocket1 = doc.addObject("PartDesign::Pocket", "Pocket")
body.addObject(pocket1)
pocket1.Profile = sketch4
pocket1.Length = 2

# Sketch on XZ plane
sketch5 = doc.addObject("Sketcher::SketchObject", "Sketch004")
body.addObject(sketch5)
sketch5.AttachmentSupport = (doc.XZ_Plane, [""])
sketch5.MapMode = "FlatFace"
sketch5.AttachmentOffset = App.Placement(Vector(0, 0, -27.678), App.Rotation())
sketch5.addGeometry([
    Part.LineSegment(Vector(-3.75, 4.5, 0), Vector(3.75, 4.5, 0)),
    Part.LineSegment(Vector(3.75, 4.5, 0), Vector(3.75, 7.5, 0)),
    Part.LineSegment(Vector(3.75, 7.5, 0), Vector(-3.75, 7.5, 0)),
    Part.LineSegment(Vector(-3.75, 7.5, 0), Vector(-3.75, 4.5, 0)),
], False)
sketch5.addConstraint([
    Sketcher.Constraint("Coincident", 0, 2, 1, 1),
    Sketcher.Constraint("Coincident", 1, 2, 2, 1),
    Sketcher.Constraint("Coincident", 2, 2, 3, 1),
    Sketcher.Constraint("Coincident", 3, 2, 0, 1),
    Sketcher.Constraint("Horizontal", 0),
    Sketcher.Constraint("Vertical", 1),
    Sketcher.Constraint("Horizontal", 2),
    Sketcher.Constraint("Vertical", 3),
    Sketcher.Constraint("DistanceY", 1, 1, 1, 2, 3.0),
    Sketcher.Constraint("DistanceX", 0, 1, 0, 2, 7.5),
    Sketcher.Constraint("DistanceY", -1, 1, 0, 2, 4.5),
    Sketcher.Constraint("DistanceX", -1, 1, 0, 2, 3.75),
])
pocket2 = doc.addObject("PartDesign::Pocket", "Pocket001")
body.addObject(pocket2)
pocket2.Profile = sketch5
pocket2.Length = 2

# Sketch on YZ plane
sketch6 = doc.addObject("Sketcher::SketchObject", "Sketch005")
body.addObject(sketch6)
sketch6.AttachmentSupport = (doc.YZ_Plane, [""])
sketch6.MapMode = "FlatFace"
sketch6.AttachmentOffset = App.Placement(Vector(0, 0, 27.678), App.Rotation())
sketch6.addGeometry([
    Part.LineSegment(Vector(3.75, 4.5, 0), Vector(-3.75, 4.5, 0)),
    Part.LineSegment(Vector(-3.75, 4.5, 0), Vector(-3.75, 7.5, 0)),
    Part.LineSegment(Vector(-3.75, 7.5, 0), Vector(3.75, 7.5, 0)),
    Part.LineSegment(Vector(3.75, 7.5, 0), Vector(3.75, 4.5, 0)),
], False)
sketch6.addConstraint([
    Sketcher.Constraint("Coincident", 0, 2, 1, 1),
    Sketcher.Constraint("Coincident", 1, 2, 2, 1),
    Sketcher.Constraint("Coincident", 2, 2, 3, 1),
    Sketcher.Constraint("Coincident", 3, 2, 0, 1),
    Sketcher.Constraint("Horizontal", 0),
    Sketcher.Constraint("Vertical", 1),
    Sketcher.Constraint("Horizontal", 2),
    Sketcher.Constraint("Vertical", 3),
    Sketcher.Constraint("DistanceY", 1, 1, 1, 2, 3.0),
    Sketcher.Constraint("DistanceX", 0, 2, 0, 1, 7.5),
    Sketcher.Constraint("DistanceY", -1, 1, 0, 2, 4.5),
    Sketcher.Constraint("DistanceX", 0, 2, -1, 1, 3.75),
])
pocket3 = doc.addObject("PartDesign::Pocket", "Pocket002")
body.addObject(pocket3)
pocket3.Profile = sketch6
pocket3.Length = 2
pocket3.Reversed = True

# Sketch on XZ plane
sketch7 = doc.addObject("Sketcher::SketchObject", "Sketch006")
body.addObject(sketch7)
sketch7.AttachmentSupport = (doc.XZ_Plane, [""])
sketch7.MapMode = "FlatFace"
sketch7.AttachmentOffset = App.Placement(Vector(0, 0, 27.678), App.Rotation())
sketch7.addGeometry([
    Part.LineSegment(Vector(3.75, 4.5, 0), Vector(-3.75, 4.5, 0)),
    Part.LineSegment(Vector(-3.75, 4.5, 0), Vector(-3.75, 7.5, 0)),
    Part.LineSegment(Vector(-3.75, 7.5, 0), Vector(3.75, 7.5, 0)),
    Part.LineSegment(Vector(3.75, 7.5, 0), Vector(3.75, 4.5, 0)),
], False)
sketch7.addConstraint([
    Sketcher.Constraint("Coincident", 0, 2, 1, 1),
    Sketcher.Constraint("Coincident", 1, 2, 2, 1),
    Sketcher.Constraint("Coincident", 2, 2, 3, 1),
    Sketcher.Constraint("Coincident", 3, 2, 0, 1),
    Sketcher.Constraint("Horizontal", 0),
    Sketcher.Constraint("Vertical", 1),
    Sketcher.Constraint("Horizontal", 2),
    Sketcher.Constraint("Vertical", 3),
    Sketcher.Constraint("DistanceY", 1, 1, 1, 2, 3.0),
    Sketcher.Constraint("DistanceX", 0, 2, 0, 1, 7.5),
    Sketcher.Constraint("DistanceY", -1, 1, 0, 2, 4.5),
    Sketcher.Constraint("DistanceX", 0, 2, -1, 1, 3.75),
])
pocket4 = doc.addObject("PartDesign::Pocket", "Pocket003")
body.addObject(pocket4)
pocket4.Profile = sketch7
pocket4.Length = 2
pocket4.Reversed = True

doc.recompute()
